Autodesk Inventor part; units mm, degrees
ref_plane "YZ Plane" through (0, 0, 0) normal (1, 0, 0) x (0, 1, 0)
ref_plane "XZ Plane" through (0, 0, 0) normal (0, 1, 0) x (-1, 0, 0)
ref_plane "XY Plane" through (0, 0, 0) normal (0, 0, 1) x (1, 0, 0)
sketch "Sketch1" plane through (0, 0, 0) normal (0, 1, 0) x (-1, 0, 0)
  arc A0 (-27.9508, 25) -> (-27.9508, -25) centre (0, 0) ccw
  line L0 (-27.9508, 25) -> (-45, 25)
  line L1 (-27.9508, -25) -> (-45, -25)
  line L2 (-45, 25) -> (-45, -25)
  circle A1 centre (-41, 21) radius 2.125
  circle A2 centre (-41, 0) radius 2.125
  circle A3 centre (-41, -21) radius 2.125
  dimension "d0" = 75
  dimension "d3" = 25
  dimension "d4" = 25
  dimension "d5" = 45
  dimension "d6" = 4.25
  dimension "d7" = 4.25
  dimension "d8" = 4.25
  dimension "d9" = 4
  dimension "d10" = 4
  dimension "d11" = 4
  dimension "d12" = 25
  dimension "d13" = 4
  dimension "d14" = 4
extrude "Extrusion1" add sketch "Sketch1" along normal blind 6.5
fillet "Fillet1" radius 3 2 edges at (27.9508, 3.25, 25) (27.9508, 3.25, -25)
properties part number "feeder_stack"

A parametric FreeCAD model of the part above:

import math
import FreeCAD as App
import Part
import Sketcher

V = App.Vector
Q = App.Units.Quantity


def edges_at(feature, points):
    """Names of the edges that pass closest to the given points."""
    edges = feature.Shape.Edges
    near = lambda p: min(range(len(edges)), key=lambda i: edges[i].distToShape(Part.Vertex(*p))[0])
    return sorted({f"Edge{near(p) + 1}" for p in points})

doc = App.newDocument("Part")
body = doc.addObject("PartDesign::Body", "Body")

# Sketch on XZ plane
sketch1 = body.newObject("Sketcher::SketchObject", "Sketch")
sketch1.AttachmentSupport = (doc.getObject("XZ_Plane"), [""])
sketch1.MapMode = "FlatFace"
sketch1.addGeometry([
    Part.ArcOfCircle(Part.Circle(V(0, 0, 0), V(0, 0, 1), 37.5), math.radians(-42), math.radians(42)),  # 0
    Part.LineSegment(V(28, 25, 0), V(45, 25, 0)),  # 1
    Part.LineSegment(V(45, 25, 0), V(45, -25, 0)),  # 2
    Part.LineSegment(V(45, -25, 0), V(28, -25, 0)),  # 3
    Part.Circle(V(41, -21, 0), V(0, 0, 1), 2.1),  # 4
    Part.Circle(V(41, 0, 0), V(0, 0, 1), 2.1),  # 5
    Part.Circle(V(41, 21, 0), V(0, 0, 1), 2.1),  # 6
], False)
sketch1.addConstraint([
    Sketcher.Constraint("Coincident", 0, 2, 1, 1),
    Sketcher.Constraint("Coincident", 1, 2, 2, 1),
    Sketcher.Constraint("Coincident", 2, 2, 3, 1),
    Sketcher.Constraint("Coincident", 3, 2, 0, 1),
    Sketcher.Constraint("Horizontal", 1),
    Sketcher.Constraint("Vertical", 2),
    Sketcher.Constraint("Horizontal", 3),
    Sketcher.Constraint("Coincident", 0, 3, -1, 1),
    Sketcher.Constraint("Equal", 4, 5),
    Sketcher.Constraint("Equal", 5, 6),
    Sketcher.Constraint("Symmetric", 4, 3, 6, 3, -1),
    Sketcher.Constraint("PointOnObject", 5, 3, -1),
    Sketcher.Constraint("Vertical", 4, 3, 5, 3),
    Sketcher.Constraint("Vertical", 0, 2, 3, 2),
    Sketcher.Constraint("Radius", 0, Q("37.5 mm")),
    Sketcher.Constraint("Diameter", 4, Q("4.25 mm")),
    Sketcher.Constraint("DistanceY", -1, 1, 0, 2, Q("25 mm")),
    Sketcher.Constraint("DistanceX", -1, 1, 1, 2, Q("45 mm")),
    Sketcher.Constraint("DistanceY", 6, 3, 0, 2, Q("4 mm")),
    Sketcher.Constraint("DistanceX", 6, 3, 1, 2, Q("4 mm")),
])
pad1 = body.newObject("PartDesign::Pad", "Pad")
pad1.Profile = sketch1
pad1.Length = 6.5
pad1.Reversed = True
doc.recompute()

fillet = body.newObject("PartDesign::Fillet", "Fillet")
fillet.Base = (pad1, edges_at(pad1, [(27.951, 3.25, 25), (27.951, 3.25, -25)]))
fillet.Radius = 3

doc.recompute()
